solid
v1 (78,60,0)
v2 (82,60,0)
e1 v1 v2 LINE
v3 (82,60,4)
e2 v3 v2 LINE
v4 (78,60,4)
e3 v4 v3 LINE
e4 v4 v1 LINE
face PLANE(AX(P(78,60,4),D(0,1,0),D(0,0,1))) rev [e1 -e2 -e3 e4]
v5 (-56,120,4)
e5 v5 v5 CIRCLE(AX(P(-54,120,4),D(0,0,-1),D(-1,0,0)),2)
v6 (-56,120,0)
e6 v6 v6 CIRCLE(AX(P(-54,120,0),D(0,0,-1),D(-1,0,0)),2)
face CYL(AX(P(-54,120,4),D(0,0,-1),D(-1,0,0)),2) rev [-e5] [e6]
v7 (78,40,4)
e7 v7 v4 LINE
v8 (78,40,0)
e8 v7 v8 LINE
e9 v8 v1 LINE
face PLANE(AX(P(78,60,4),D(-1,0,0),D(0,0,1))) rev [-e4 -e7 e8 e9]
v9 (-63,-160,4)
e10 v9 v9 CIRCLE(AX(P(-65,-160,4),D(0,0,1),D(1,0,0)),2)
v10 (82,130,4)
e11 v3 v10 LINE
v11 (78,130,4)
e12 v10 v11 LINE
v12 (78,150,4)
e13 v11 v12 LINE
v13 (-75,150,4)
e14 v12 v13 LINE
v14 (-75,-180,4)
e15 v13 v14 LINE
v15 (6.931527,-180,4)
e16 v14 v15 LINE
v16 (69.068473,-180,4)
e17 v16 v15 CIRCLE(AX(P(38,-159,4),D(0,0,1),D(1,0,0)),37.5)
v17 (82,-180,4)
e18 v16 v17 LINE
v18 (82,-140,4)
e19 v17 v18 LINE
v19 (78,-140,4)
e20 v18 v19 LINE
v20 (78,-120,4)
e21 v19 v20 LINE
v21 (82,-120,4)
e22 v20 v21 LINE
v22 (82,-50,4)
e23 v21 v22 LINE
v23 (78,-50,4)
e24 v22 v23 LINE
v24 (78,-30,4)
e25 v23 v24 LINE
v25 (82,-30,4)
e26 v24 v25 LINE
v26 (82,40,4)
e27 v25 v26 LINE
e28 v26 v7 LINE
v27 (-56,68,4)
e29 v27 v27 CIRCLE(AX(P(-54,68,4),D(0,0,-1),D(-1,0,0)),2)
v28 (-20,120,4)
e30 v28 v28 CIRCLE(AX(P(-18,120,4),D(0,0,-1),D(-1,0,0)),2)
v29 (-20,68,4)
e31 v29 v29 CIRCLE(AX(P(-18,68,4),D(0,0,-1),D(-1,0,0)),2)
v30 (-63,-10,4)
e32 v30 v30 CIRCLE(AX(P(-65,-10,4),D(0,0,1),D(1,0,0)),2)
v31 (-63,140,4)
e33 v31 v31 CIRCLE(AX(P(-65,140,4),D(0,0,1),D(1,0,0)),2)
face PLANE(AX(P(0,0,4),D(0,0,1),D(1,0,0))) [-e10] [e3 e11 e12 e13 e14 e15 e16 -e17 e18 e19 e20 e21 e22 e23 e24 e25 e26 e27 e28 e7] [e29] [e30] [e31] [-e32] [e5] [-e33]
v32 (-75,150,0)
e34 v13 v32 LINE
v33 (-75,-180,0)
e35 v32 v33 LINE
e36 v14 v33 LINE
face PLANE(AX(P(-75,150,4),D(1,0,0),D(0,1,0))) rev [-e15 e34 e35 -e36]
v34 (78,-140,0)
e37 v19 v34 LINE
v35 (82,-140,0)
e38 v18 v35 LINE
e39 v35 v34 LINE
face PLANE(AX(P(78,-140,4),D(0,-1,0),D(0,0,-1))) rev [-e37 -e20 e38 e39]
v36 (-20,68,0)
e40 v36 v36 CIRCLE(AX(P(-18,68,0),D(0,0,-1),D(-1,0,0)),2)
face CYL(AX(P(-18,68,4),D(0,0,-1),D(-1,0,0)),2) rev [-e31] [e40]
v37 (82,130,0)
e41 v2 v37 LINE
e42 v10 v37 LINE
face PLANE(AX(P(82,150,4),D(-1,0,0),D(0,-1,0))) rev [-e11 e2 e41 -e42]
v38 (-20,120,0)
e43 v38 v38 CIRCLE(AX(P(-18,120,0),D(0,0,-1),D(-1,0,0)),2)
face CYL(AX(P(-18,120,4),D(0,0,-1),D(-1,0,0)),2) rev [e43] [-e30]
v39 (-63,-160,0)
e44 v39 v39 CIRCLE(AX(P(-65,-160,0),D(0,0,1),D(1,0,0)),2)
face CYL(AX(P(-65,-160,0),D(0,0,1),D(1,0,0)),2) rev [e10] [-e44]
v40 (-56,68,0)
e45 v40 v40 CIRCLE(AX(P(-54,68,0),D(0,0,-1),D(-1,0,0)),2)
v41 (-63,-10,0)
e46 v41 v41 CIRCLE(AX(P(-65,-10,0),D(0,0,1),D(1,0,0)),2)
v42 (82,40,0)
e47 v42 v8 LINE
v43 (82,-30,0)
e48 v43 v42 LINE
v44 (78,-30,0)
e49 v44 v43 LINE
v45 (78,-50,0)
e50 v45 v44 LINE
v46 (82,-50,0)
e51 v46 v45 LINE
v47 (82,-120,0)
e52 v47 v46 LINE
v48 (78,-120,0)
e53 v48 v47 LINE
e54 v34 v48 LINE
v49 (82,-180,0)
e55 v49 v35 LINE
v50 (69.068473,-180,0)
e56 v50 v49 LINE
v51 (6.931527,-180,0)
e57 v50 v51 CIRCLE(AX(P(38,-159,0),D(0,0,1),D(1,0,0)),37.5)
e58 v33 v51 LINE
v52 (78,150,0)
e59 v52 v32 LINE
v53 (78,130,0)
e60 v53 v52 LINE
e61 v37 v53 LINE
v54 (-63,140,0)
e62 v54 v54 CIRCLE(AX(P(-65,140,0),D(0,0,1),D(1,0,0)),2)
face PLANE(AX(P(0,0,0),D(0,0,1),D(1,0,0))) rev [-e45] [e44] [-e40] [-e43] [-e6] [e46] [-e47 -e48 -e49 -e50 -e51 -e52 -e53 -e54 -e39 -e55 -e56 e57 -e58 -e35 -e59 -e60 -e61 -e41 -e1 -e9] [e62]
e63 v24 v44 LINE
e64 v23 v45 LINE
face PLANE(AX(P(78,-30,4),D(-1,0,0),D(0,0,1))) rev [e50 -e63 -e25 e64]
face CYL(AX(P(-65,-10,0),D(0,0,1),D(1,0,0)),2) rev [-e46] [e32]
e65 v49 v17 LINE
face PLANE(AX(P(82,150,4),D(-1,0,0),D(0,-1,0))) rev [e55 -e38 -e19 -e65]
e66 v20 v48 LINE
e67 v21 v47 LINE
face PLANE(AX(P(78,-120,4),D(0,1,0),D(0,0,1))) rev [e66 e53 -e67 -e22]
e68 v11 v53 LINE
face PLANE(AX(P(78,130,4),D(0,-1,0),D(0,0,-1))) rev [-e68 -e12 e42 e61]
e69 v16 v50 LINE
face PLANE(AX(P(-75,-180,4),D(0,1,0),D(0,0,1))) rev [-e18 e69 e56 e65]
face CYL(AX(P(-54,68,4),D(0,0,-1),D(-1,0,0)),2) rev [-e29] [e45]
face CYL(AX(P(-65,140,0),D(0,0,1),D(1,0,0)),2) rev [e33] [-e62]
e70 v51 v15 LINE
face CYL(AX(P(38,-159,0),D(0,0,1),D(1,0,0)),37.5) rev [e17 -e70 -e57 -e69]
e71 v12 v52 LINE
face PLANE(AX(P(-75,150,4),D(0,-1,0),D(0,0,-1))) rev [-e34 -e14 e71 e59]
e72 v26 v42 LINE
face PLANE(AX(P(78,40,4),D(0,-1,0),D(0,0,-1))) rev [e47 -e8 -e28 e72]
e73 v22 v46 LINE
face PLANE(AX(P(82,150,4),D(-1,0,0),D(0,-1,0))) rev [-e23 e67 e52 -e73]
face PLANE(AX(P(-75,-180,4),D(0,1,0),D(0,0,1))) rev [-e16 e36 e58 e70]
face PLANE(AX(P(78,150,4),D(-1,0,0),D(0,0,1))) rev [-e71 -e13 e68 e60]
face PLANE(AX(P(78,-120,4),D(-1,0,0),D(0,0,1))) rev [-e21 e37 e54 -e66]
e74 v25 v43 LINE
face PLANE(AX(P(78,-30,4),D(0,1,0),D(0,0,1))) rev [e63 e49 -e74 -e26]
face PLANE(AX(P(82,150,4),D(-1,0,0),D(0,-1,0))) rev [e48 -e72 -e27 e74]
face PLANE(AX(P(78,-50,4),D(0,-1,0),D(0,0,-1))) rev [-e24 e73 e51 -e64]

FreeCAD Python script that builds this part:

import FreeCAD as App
import Part
import Sketcher
from FreeCAD import Vector
Q = App.Units.Quantity

doc = App.newDocument("Part")
params = doc.addObject("Spreadsheet::Sheet", "Params")
for row, (alias, value) in enumerate([
    ("sketch1_width", "165 mm"),
    ("sketch1_height", "330 mm"),
    ("pad1_length", "4 mm"),
    ("sketch2_diameter", "75 mm"),
    ("sketch3_width", "8 mm"),
    ("sketch3_height", "300 mm"),
    ("sketch4_width", "4 mm"),
    ("sketch4_height", "20 mm"),
    ("sketch5_width", "8 mm"),
    ("sketch5_height", "30 mm"),
    ("sketch6_diameter", "4 mm"),
    ("sketch7_diameter", "4 mm"),
], start=1):
    params.set(f"A{row}", alias)
    params.set(f"B{row}", "=" + value)
    params.setAlias(f"B{row}", alias)

body = doc.addObject("PartDesign::Body", "Body")

# Sketch on XY plane
sketch1 = body.newObject("Sketcher::SketchObject", "Sketch")
sketch1.AttachmentSupport = (doc.getObject("XY_Plane"), [""])
sketch1.MapMode = "FlatFace"
sketch1.addGeometry([
    Part.LineSegment(Vector(-75, 150, 0), Vector(-75, -180, 0)),
    Part.LineSegment(Vector(-75, -180, 0), Vector(90, -180, 0)),
    Part.LineSegment(Vector(90, -180, 0), Vector(90, 150, 0)),
    Part.LineSegment(Vector(90, 150, 0), Vector(-75, 150, 0)),
], False)
sketch1.addConstraint([
    Sketcher.Constraint("Coincident", 0, 2, 1, 1),
    Sketcher.Constraint("Coincident", 1, 2, 2, 1),
    Sketcher.Constraint("Coincident", 2, 2, 3, 1),
    Sketcher.Constraint("Coincident", 3, 2, 0, 1),
    Sketcher.Constraint("Vertical", 0),
    Sketcher.Constraint("Horizontal", 1),
    Sketcher.Constraint("Vertical", 2),
    Sketcher.Constraint("Horizontal", 3),
    Sketcher.Constraint("DistanceX", 1, 1, 1, 2, Q("165 mm")),
    Sketcher.Constraint("DistanceY", 0, 2, 0, 1, Q("330 mm")),
    Sketcher.Constraint("DistanceX", 0, 2, -1, 1, Q("75 mm")),
    Sketcher.Constraint("DistanceY", 0, 2, -1, 1, Q("180 mm")),
])
sketch1.setExpression("Constraints[8]", "Params.sketch1_width")
sketch1.setExpression("Constraints[9]", "Params.sketch1_height")
pad1 = body.newObject("PartDesign::Pad", "Pad")
pad1.Profile = sketch1
pad1.setExpression("Length", "Params.pad1_length")

# Sketch on XY plane
sketch2 = body.newObject("Sketcher::SketchObject", "Sketch001")
sketch2.AttachmentSupport = (doc.getObject("XY_Plane"), [""])
sketch2.MapMode = "FlatFace"
sketch2.AttachmentOffset = App.Placement(Vector(0, 0, 4), App.Rotation())
sketch2.addGeometry(Part.Circle(Vector(38, -159, 0), Vector(0, 0, 1), 38), False)
sketch2.addConstraint([
    Sketcher.Constraint("Diameter", 0, Q("75 mm")),
    Sketcher.Constraint("DistanceX", -1, 1, 0, 3, Q("38 mm")),
    Sketcher.Constraint("DistanceY", 0, 3, -1, 1, Q("159 mm")),
])
sketch2.setExpression("Constraints[0]", "Params.sketch2_diameter")
pocket1 = body.newObject("PartDesign::Pocket", "Pocket")
pocket1.Profile = sketch2
pocket1.Type = "ThroughAll"

# Sketch on XY plane
sketch3 = body.newObject("Sketcher::SketchObject", "Sketch002")
sketch3.AttachmentSupport = (doc.getObject("XY_Plane"), [""])
sketch3.MapMode = "FlatFace"
sketch3.addGeometry([
    Part.LineSegment(Vector(90, 150, 0), Vector(90, -150, 0)),
    Part.LineSegment(Vector(90, -150, 0), Vector(82, -150, 0)),
    Part.LineSegment(Vector(82, -150, 0), Vector(82, 150, 0)),
    Part.LineSegment(Vector(82, 150, 0), Vector(90, 150, 0)),
], False)
sketch3.addConstraint([
    Sketcher.Constraint("Coincident", 0, 2, 1, 1),
    Sketcher.Constraint("Coincident", 1, 2, 2, 1),
    Sketcher.Constraint("Coincident", 2, 2, 3, 1),
    Sketcher.Constraint("Coincident", 3, 2, 0, 1),
    Sketcher.Constraint("Vertical", 0),
    Sketcher.Constraint("Horizontal", 1),
    Sketcher.Constraint("Vertical", 2),
    Sketcher.Constraint("Horizontal", 3),
    Sketcher.Constraint("DistanceX", 1, 2, 1, 1, Q("8 mm")),
    Sketcher.Constraint("DistanceY", 0, 2, 0, 1, Q("300 mm")),
    Sketcher.Constraint("DistanceX", -1, 1, 0, 2, Q("90 mm")),
    Sketcher.Constraint("DistanceY", 0, 2, -1, 1, Q("150 mm")),
])
sketch3.setExpression("Constraints[8]", "Params.sketch3_width")
sketch3.setExpression("Constraints[9]", "Params.sketch3_height")
pocket2 = body.newObject("PartDesign::Pocket", "Pocket001")
pocket2.Profile = sketch3
pocket2.Type = "ThroughAll"
pocket2.Reversed = True

# Sketch on XY plane
sketch4 = body.newObject("Sketcher::SketchObject", "Sketch003")
sketch4.AttachmentSupport = (doc.getObject("XY_Plane"), [""])
sketch4.MapMode = "FlatFace"
sketch4.addGeometry([
    Part.LineSegment(Vector(82, 150, 0), Vector(82, 130, 0)),  # 0
    Part.LineSegment(Vector(82, 130, 0), Vector(78, 130, 0)),  # 1
    Part.LineSegment(Vector(78, 130, 0), Vector(78, 150, 0)),  # 2
    Part.LineSegment(Vector(78, 150, 0), Vector(82, 150, 0)),  # 3
    Part.LineSegment(Vector(82, 60, 0), Vector(82, 40, 0)),  # 4
    Part.LineSegment(Vector(82, 40, 0), Vector(78, 40, 0)),  # 5
    Part.LineSegment(Vector(78, 40, 0), Vector(78, 60, 0)),  # 6
    Part.LineSegment(Vector(78, 60, 0), Vector(82, 60, 0)),  # 7
    Part.LineSegment(Vector(82, -30, 0), Vector(82, -50, 0)),  # 8
    Part.LineSegment(Vector(82, -50, 0), Vector(78, -50, 0)),  # 9
    Part.LineSegment(Vector(78, -50, 0), Vector(78, -30, 0)),  # 10
    Part.LineSegment(Vector(78, -30, 0), Vector(82, -30, 0)),  # 11
    Part.LineSegment(Vector(82, -120, 0), Vector(82, -140, 0)),  # 12
    Part.LineSegment(Vector(82, -140, 0), Vector(78, -140, 0)),  # 13
    Part.LineSegment(Vector(78, -140, 0), Vector(78, -120, 0)),  # 14
    Part.LineSegment(Vector(78, -120, 0), Vector(82, -120, 0)),  # 15
], False)
sketch4.addConstraint([
    Sketcher.Constraint("Coincident", 0, 2, 1, 1),
    Sketcher.Constraint("Coincident", 1, 2, 2, 1),
    Sketcher.Constraint("Coincident", 2, 2, 3, 1),
    Sketcher.Constraint("Coincident", 3, 2, 0, 1),
    Sketcher.Constraint("Coincident", 4, 2, 5, 1),
    Sketcher.Constraint("Coincident", 5, 2, 6, 1),
    Sketcher.Constraint("Coincident", 6, 2, 7, 1),
    Sketcher.Constraint("Coincident", 7, 2, 4, 1),
    Sketcher.Constraint("Coincident", 8, 2, 9, 1),
    Sketcher.Constraint("Coincident", 9, 2, 10, 1),
    Sketcher.Constraint("Coincident", 10, 2, 11, 1),
    Sketcher.Constraint("Coincident", 11, 2, 8, 1),
    Sketcher.Constraint("Coincident", 12, 2, 13, 1),
    Sketcher.Constraint("Coincident", 13, 2, 14, 1),
    Sketcher.Constraint("Coincident", 14, 2, 15, 1),
    Sketcher.Constraint("Coincident", 15, 2, 12, 1),
    Sketcher.Constraint("Vertical", 0),
    Sketcher.Constraint("Horizontal", 1),
    Sketcher.Constraint("Vertical", 2),
    Sketcher.Constraint("Horizontal", 3),
    Sketcher.Constraint("Vertical", 4),
    Sketcher.Constraint("Horizontal", 5),
    Sketcher.Constraint("Vertical", 6),
    Sketcher.Constraint("Horizontal", 7),
    Sketcher.Constraint("Vertical", 8),
    Sketcher.Constraint("Horizontal", 9),
    Sketcher.Constraint("Vertical", 10),
    Sketcher.Constraint("Horizontal", 11),
    Sketcher.Constraint("Vertical", 12),
    Sketcher.Constraint("Horizontal", 13),
    Sketcher.Constraint("Vertical", 14),
    Sketcher.Constraint("Horizontal", 15),
    Sketcher.Constraint("Vertical", 3, 2, 4, 2),
    Sketcher.Constraint("Vertical", 2, 2, 5, 2),
    Sketcher.Constraint("Vertical", 7, 2, 8, 2),
    Sketcher.Constraint("Vertical", 6, 2, 9, 2),
    Sketcher.Constraint("Vertical", 11, 2, 12, 2),
    Sketcher.Constraint("Vertical", 10, 2, 13, 2),
    Sketcher.Constraint("Equal", 2, 4),
    Sketcher.Constraint("Equal", 6, 8),
    Sketcher.Constraint("Equal", 10, 12),
    Sketcher.Constraint("DistanceX", 1, 2, 1, 1, Q("4 mm")),
    Sketcher.Constraint("DistanceY", 0, 2, 0, 1, Q("20 mm")),
    Sketcher.Constraint("DistanceX", -1, 1, 0, 2, Q("82 mm")),
    Sketcher.Constraint("DistanceY", -1, 1, 0, 2, Q("130 mm")),
    Sketcher.Constraint("DistanceY", -1, 1, 4, 2, Q("40 mm")),
    Sketcher.Constraint("DistanceY", 8, 2, -1, 1, Q("50 mm")),
    Sketcher.Constraint("DistanceY", 12, 2, -1, 1, Q("140 mm")),
])
sketch4.setExpression("Constraints[41]", "Params.sketch4_width")
sketch4.setExpression("Constraints[42]", "Params.sketch4_height")
pocket3 = body.newObject("PartDesign::Pocket", "Pocket002")
pocket3.Profile = sketch4
pocket3.Type = "ThroughAll"
pocket3.Reversed = True

# Sketch on XY plane
sketch5 = body.newObject("Sketcher::SketchObject", "Sketch004")
sketch5.AttachmentSupport = (doc.getObject("XY_Plane"), [""])
sketch5.MapMode = "FlatFace"
sketch5.AttachmentOffset = App.Placement(Vector(0, 0, 4), App.Rotation())
sketch5.addGeometry([
    Part.LineSegment(Vector(82, -150, 0), Vector(82, -180, 0)),
    Part.LineSegment(Vector(82, -180, 0), Vector(90, -180, 0)),
    Part.LineSegment(Vector(90, -180, 0), Vector(90, -150, 0)),
    Part.LineSegment(Vector(90, -150, 0), Vector(82, -150, 0)),
], False)
sketch5.addConstraint([
    Sketcher.Constraint("Coincident", 0, 2, 1, 1),
    Sketcher.Constraint("Coincident", 1, 2, 2, 1),
    Sketcher.Constraint("Coincident", 2, 2, 3, 1),
    Sketcher.Constraint("Coincident", 3, 2, 0, 1),
    Sketcher.Constraint("Vertical", 0),
    Sketcher.Constraint("Horizontal", 1),
    Sketcher.Constraint("Vertical", 2),
    Sketcher.Constraint("Horizontal", 3),
    Sketcher.Constraint("DistanceX", 1, 1, 1, 2, Q("8 mm")),
    Sketcher.Constraint("DistanceY", 0, 2, 0, 1, Q("30 mm")),
    Sketcher.Constraint("DistanceX", -1, 1, 0, 2, Q("82 mm")),
    Sketcher.Constraint("DistanceY", 0, 2, -1, 1, Q("180 mm")),
])
sketch5.setExpression("Constraints[8]", "Params.sketch5_width")
sketch5.setExpression("Constraints[9]", "Params.sketch5_height")
pocket4 = body.newObject("PartDesign::Pocket", "Pocket003")
pocket4.Profile = sketch5
pocket4.Type = "ThroughAll"

# Sketch on XY plane
sketch6 = body.newObject("Sketcher::SketchObject", "Sketch005")
sketch6.AttachmentSupport = (doc.getObject("XY_Plane"), [""])
sketch6.MapMode = "FlatFace"
sketch6.addGeometry([
    Part.Circle(Vector(-18, 120, 0), Vector(0, 0, 1), 2),
    Part.Circle(Vector(-54, 120, 0), Vector(0, 0, 1), 2),
    Part.Circle(Vector(-18, 68, 0), Vector(0, 0, 1), 2),
    Part.Circle(Vector(-54, 68, 0), Vector(0, 0, 1), 2),
], False)
sketch6.addConstraint([
    Sketcher.Constraint("Equal", 0, 1),
    Sketcher.Constraint("Equal", 1, 2),
    Sketcher.Constraint("Equal", 2, 3),
    Sketcher.Constraint("Horizontal", 0, 3, 1, 3),
    Sketcher.Constraint("Horizontal", 2, 3, 3, 3),
    Sketcher.Constraint("Vertical", 0, 3, 2, 3),
    Sketcher.Constraint("Vertical", 1, 3, 3, 3),
    Sketcher.Constraint("Diameter", 0, Q("4 mm")),
    Sketcher.Constraint("DistanceX", 0, 3, -1, 1, Q("18 mm")),
    Sketcher.Constraint("DistanceY", -1, 1, 0, 3, Q("120 mm")),
    Sketcher.Constraint("DistanceX", 1, 3, -1, 1, Q("54 mm")),
    Sketcher.Constraint("DistanceY", -1, 1, 2, 3, Q("68 mm")),
])
sketch6.setExpression("Constraints[7]", "Params.sketch6_diameter")
pocket5 = body.newObject("PartDesign::Pocket", "Pocket004")
pocket5.Profile = sketch6
pocket5.Type = "ThroughAll"
pocket5.Reversed = True

# Sketch on XY plane
sketch7 = body.newObject("Sketcher::SketchObject", "Sketch006")
sketch7.AttachmentSupport = (doc.getObject("XY_Plane"), [""])
sketch7.MapMode = "FlatFace"
sketch7.AttachmentOffset = App.Placement(Vector(0, 0, 4), App.Rotation())
sketch7.addGeometry([
    Part.Circle(Vector(-65, 140, 0), Vector(0, 0, 1), 2),
    Part.Circle(Vector(-65, -10, 0), Vector(0, 0, 1), 2),
    Part.Circle(Vector(-65, -160, 0), Vector(0, 0, 1), 2),
], False)
sketch7.addConstraint([
    Sketcher.Constraint("Equal", 0, 1),
    Sketcher.Constraint("Equal", 1, 2),
    Sketcher.Constraint("Vertical", 0, 3, 1, 3),
    Sketcher.Constraint("Vertical", 1, 3, 2, 3),
    Sketcher.Constraint("Diameter", 0, Q("4 mm")),
    Sketcher.Constraint("DistanceX", 0, 3, -1, 1, Q("65 mm")),
    Sketcher.Constraint("DistanceY", -1, 1, 0, 3, Q("140 mm")),
    Sketcher.Constraint("DistanceY", 1, 3, -1, 1, Q("10 mm")),
    Sketcher.Constraint("DistanceY", 2, 3, -1, 1, Q("160 mm")),
])
sketch7.setExpression("Constraints[4]", "Params.sketch7_diameter")
pocket6 = body.newObject("PartDesign::Pocket", "Pocket005")
pocket6.Profile = sketch7
pocket6.Type = "ThroughAll"

doc.recompute()
